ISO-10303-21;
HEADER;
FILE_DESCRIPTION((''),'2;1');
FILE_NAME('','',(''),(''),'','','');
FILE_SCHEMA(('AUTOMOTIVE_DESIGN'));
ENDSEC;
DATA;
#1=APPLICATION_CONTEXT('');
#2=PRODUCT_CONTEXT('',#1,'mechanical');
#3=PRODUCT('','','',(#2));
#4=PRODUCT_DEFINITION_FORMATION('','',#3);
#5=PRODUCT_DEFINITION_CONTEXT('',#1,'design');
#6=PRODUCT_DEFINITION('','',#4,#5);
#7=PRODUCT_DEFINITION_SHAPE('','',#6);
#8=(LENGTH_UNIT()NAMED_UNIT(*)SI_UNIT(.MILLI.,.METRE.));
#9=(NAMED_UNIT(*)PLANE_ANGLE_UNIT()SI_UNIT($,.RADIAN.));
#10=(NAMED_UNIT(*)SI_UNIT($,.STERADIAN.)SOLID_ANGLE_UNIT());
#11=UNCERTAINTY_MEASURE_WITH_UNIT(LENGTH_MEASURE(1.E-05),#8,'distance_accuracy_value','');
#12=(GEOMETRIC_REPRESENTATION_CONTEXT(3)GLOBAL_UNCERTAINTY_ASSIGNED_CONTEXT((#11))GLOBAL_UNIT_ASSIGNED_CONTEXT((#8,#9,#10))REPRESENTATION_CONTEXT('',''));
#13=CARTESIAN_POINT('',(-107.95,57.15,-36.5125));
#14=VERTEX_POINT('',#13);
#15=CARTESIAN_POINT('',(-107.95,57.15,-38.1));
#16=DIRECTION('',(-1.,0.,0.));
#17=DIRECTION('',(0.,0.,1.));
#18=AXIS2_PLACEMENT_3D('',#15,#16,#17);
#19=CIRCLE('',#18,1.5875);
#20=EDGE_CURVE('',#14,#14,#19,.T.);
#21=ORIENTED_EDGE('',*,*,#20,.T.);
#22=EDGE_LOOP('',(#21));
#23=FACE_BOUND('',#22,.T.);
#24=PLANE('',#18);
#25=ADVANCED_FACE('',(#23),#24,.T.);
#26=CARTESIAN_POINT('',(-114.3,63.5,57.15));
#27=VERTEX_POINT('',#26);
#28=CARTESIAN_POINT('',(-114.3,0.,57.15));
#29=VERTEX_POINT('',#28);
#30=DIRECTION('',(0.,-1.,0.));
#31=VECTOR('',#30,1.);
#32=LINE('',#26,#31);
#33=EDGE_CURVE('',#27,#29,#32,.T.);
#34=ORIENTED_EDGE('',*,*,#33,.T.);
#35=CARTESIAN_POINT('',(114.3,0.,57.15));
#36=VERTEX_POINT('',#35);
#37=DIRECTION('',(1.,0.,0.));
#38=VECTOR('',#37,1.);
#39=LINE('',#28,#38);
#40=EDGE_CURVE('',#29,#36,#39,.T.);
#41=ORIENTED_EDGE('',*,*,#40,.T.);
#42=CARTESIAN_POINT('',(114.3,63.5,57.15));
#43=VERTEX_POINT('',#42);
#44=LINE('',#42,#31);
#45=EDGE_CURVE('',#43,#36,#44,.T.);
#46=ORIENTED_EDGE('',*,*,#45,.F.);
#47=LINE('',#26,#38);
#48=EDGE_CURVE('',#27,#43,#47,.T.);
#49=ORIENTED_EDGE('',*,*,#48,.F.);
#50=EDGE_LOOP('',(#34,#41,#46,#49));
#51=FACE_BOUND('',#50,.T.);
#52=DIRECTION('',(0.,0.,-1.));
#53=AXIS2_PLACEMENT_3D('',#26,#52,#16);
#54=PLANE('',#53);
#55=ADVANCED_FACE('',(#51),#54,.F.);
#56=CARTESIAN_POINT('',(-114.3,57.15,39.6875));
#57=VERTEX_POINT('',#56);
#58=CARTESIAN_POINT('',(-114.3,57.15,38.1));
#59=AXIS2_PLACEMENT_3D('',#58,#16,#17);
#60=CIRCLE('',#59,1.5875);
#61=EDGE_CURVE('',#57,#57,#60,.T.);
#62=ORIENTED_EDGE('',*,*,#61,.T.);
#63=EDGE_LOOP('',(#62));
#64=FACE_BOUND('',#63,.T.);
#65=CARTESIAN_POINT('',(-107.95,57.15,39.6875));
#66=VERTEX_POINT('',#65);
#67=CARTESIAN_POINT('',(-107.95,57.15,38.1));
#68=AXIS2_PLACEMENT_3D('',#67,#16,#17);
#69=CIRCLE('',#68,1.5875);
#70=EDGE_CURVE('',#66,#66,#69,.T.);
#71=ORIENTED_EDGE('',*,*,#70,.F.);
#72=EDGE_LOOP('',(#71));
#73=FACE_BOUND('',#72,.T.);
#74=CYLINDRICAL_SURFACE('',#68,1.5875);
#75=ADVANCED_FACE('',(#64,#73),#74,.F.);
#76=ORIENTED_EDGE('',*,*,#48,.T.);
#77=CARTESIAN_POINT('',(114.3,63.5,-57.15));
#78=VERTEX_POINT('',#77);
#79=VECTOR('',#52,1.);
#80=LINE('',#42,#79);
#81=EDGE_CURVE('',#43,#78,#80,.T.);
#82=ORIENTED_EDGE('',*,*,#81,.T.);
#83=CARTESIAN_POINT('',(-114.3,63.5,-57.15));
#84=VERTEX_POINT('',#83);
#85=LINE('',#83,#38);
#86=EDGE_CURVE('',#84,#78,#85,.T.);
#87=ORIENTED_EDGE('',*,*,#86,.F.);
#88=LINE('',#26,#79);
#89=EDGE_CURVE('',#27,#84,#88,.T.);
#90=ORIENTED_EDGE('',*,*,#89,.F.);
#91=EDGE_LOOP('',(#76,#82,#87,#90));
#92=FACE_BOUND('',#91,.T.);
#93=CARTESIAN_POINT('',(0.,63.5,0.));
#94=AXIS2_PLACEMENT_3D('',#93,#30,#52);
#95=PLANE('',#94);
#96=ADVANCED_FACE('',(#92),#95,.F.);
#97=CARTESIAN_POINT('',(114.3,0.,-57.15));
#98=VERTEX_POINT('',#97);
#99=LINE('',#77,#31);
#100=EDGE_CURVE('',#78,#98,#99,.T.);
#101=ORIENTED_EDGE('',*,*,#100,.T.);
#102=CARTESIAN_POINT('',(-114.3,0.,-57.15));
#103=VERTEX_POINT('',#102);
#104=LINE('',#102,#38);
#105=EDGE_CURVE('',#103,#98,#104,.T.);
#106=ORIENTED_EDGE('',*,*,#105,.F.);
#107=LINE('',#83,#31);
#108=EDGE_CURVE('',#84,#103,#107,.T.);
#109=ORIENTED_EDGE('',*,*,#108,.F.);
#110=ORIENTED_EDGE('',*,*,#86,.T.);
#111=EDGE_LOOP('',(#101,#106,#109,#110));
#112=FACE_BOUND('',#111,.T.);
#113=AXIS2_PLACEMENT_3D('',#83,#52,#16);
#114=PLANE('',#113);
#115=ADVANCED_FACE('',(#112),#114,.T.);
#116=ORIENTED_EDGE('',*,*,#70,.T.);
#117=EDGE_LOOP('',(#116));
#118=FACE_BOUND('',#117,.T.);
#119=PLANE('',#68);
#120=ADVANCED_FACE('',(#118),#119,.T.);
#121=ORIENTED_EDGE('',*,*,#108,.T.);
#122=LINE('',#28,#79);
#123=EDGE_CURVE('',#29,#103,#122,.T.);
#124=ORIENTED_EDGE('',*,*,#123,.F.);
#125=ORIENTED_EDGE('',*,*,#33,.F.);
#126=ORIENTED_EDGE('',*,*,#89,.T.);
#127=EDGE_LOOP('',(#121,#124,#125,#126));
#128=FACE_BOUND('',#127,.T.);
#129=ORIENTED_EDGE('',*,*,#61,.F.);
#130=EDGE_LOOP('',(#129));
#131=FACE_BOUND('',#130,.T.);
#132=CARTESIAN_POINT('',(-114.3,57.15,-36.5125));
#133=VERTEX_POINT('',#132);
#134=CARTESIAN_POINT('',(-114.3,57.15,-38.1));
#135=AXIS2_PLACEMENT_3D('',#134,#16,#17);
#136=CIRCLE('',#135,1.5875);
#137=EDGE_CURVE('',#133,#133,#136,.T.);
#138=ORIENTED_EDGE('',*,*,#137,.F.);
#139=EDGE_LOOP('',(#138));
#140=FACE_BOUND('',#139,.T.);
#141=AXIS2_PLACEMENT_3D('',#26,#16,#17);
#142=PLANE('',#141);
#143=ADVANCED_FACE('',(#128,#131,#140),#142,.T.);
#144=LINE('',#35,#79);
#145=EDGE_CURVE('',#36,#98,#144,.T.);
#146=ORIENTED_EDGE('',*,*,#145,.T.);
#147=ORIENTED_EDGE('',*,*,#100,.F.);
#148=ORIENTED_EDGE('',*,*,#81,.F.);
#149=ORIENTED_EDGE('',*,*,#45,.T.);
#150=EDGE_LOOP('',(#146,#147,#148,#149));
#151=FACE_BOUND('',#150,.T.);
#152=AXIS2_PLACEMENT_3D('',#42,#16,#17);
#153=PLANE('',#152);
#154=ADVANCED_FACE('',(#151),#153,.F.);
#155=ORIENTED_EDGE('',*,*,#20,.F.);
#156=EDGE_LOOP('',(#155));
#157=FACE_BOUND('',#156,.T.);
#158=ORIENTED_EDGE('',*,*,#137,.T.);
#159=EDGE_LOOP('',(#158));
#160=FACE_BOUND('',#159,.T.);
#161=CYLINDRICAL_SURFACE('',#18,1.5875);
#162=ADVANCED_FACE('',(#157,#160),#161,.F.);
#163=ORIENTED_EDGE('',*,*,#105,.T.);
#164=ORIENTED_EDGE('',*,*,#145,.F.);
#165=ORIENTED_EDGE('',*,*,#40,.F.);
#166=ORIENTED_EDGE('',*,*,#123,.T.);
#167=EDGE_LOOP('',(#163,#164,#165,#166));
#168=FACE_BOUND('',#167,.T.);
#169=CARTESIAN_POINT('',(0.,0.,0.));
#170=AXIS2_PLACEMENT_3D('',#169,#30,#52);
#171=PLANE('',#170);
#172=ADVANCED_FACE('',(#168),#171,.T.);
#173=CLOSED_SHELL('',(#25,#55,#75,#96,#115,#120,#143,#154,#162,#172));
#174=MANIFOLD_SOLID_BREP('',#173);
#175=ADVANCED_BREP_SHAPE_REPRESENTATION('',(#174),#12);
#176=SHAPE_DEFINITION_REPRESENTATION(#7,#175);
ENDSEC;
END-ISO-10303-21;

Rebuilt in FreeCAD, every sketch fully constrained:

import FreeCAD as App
import Part
import Sketcher
from FreeCAD import Vector
Q = App.Units.Quantity

doc = App.newDocument("Part")
params = doc.addObject("Spreadsheet::Sheet", "Params")
for row, (alias, value) in enumerate([
    ("sketch1_width", "9 in"),
    ("sketch1_height", "4.5 in"),
    ("pad1_length", "2.5 in"),
    ("sketch2_diameter", "0.125 in"),
    ("pocket1_length", "0.25 in"),
], start=1):
    params.set(f"A{row}", alias)
    params.set(f"B{row}", "=" + value)
    params.setAlias(f"B{row}", alias)

body = doc.addObject("PartDesign::Body", "Body")

# Sketch on XZ plane
sketch1 = body.newObject("Sketcher::SketchObject", "Sketch")
sketch1.AttachmentSupport = (doc.getObject("XZ_Plane"), [""])
sketch1.MapMode = "FlatFace"
sketch1.addGeometry(Part.LineSegment(Vector(-114, -57, 0), Vector(-114, 57, 0)), False)
sketch1.addGeometry(Part.LineSegment(Vector(-114, 57, 0), Vector(114, 57, 0)), False)
sketch1.addGeometry(Part.LineSegment(Vector(114, 57, 0), Vector(114, -57, 0)), False)
sketch1.addGeometry(Part.LineSegment(Vector(114, -57, 0), Vector(-114, -57, 0)), False)
sketch1.addConstraint(Sketcher.Constraint("Coincident", 0, 2, 1, 1))
sketch1.addConstraint(Sketcher.Constraint("Coincident", 1, 2, 2, 1))
sketch1.addConstraint(Sketcher.Constraint("Coincident", 2, 2, 3, 1))
sketch1.addConstraint(Sketcher.Constraint("Coincident", 3, 2, 0, 1))
sketch1.addConstraint(Sketcher.Constraint("Vertical", 0))
sketch1.addConstraint(Sketcher.Constraint("Horizontal", 1))
sketch1.addConstraint(Sketcher.Constraint("Vertical", 2))
sketch1.addConstraint(Sketcher.Constraint("Horizontal", 3))
sketch1.addConstraint(Sketcher.Constraint("Symmetric", 0, 2, 2, 2, -1, 1))
sketch1.addConstraint(Sketcher.Constraint("DistanceX", 1, 1, 1, 2, Q("9 in")))
sketch1.addConstraint(Sketcher.Constraint("DistanceY", 0, 1, 0, 2, Q("4.5 in")))
sketch1.setExpression("Constraints[9]", "Params.sketch1_width")
sketch1.setExpression("Constraints[10]", "Params.sketch1_height")
pad1 = body.newObject("PartDesign::Pad", "Pad")
pad1.Profile = sketch1
pad1.setExpression("Length", "Params.pad1_length")
pad1.Reversed = True

# Sketch on YZ plane
sketch2 = body.newObject("Sketcher::SketchObject", "Sketch001")
sketch2.AttachmentSupport = (doc.getObject("YZ_Plane"), [""])
sketch2.MapMode = "FlatFace"
sketch2.AttachmentOffset = App.Placement(Vector(0, 0, -4.5 * 25.4), App.Rotation())
sketch2.addGeometry(Part.Circle(Vector(57.1, -38.1, 0), Vector(0, 0, 1), 1.6), False)
sketch2.addGeometry(Part.Circle(Vector(57.1, 38.1, 0), Vector(0, 0, 1), 1.6), False)
sketch2.addConstraint(Sketcher.Constraint("Equal", 0, 1))
sketch2.addConstraint(Sketcher.Constraint("Symmetric", 0, 3, 1, 3, -1))
sketch2.addConstraint(Sketcher.Constraint("Diameter", 0, Q("0.125 in")))
sketch2.addConstraint(Sketcher.Constraint("DistanceY", 0, 3, 1, 3, Q("3 in")))
sketch2.addConstraint(Sketcher.Constraint("DistanceX", -1, 1, 0, 3, Q("2.25 in")))
sketch2.setExpression("Constraints[2]", "Params.sketch2_diameter")
pocket1 = body.newObject("PartDesign::Pocket", "Pocket")
pocket1.Profile = sketch2
pocket1.setExpression("Length", "Params.pocket1_length")
pocket1.Reversed = True

doc.recompute()
